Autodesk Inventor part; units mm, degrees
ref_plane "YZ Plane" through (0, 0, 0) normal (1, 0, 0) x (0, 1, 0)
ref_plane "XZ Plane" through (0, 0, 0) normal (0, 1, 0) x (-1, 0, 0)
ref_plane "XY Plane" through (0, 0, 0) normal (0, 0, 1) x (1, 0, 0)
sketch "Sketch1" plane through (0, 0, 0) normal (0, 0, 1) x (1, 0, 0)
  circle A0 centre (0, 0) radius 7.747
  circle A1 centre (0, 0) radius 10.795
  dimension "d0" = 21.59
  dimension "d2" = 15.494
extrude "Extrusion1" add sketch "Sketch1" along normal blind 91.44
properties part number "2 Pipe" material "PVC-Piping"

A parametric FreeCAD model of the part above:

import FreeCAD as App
import Part
import Sketcher
Q = App.Units.Quantity

doc = App.newDocument("Part")
body = doc.addObject("PartDesign::Body", "Body")

# Sketch on XY plane
sketch1 = body.newObject("Sketcher::SketchObject", "Sketch")
sketch1.AttachmentSupport = (doc.getObject("XY_Plane"), [""])
sketch1.MapMode = "FlatFace"
sketch1.addGeometry(Part.Circle(App.Vector(0, 0, 0), App.Vector(0, 0, 1), 11), False)
sketch1.addGeometry(Part.Circle(App.Vector(0, 0, 0), App.Vector(0, 0, 1), 8), False)
sketch1.addConstraint(Sketcher.Constraint("Coincident", 0, 3, -1, 1))
sketch1.addConstraint(Sketcher.Constraint("Coincident", 1, 3, -1, 1))
sketch1.addConstraint(Sketcher.Constraint("Diameter", 0, Q("0.85 in")))
sketch1.addConstraint(Sketcher.Constraint("Diameter", 1, Q("0.61 in")))
pad1 = body.newObject("PartDesign::Pad", "Pad")
pad1.Profile = sketch1
pad1.Length = Q("3.6 in")

doc.recompute()
